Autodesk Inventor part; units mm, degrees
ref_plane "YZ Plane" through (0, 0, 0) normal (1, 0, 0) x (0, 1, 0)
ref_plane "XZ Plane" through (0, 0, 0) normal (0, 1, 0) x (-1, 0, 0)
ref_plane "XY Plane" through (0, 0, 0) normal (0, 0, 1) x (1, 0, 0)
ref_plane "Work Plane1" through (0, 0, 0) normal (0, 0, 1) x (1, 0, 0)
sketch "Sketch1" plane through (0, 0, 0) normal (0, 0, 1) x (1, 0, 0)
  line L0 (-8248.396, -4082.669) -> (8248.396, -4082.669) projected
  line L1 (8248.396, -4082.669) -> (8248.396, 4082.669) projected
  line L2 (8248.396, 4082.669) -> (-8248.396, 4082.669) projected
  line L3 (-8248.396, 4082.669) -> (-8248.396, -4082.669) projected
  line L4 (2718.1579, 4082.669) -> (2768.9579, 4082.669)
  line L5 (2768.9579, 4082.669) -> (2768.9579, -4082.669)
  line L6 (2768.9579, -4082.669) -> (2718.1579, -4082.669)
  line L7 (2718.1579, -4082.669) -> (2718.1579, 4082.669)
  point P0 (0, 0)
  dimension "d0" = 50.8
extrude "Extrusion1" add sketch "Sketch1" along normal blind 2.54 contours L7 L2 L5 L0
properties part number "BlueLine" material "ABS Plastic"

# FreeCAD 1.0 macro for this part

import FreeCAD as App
import Part
import Sketcher
Q = App.Units.Quantity


def add_polygon(sketch, points):
    """Adds a closed chain of lines whose ends are joined by coincident constraints."""
    first, n = sketch.GeometryCount, len(points)
    for a, b in zip(points, points[1:] + points[:1]):
        sketch.addGeometry(Part.LineSegment(App.Vector(*a, 0), App.Vector(*b, 0)), False)
    for i in range(n):
        sketch.addConstraint(Sketcher.Constraint("Coincident", first + i, 2, first + (i + 1) % n, 1))

doc = App.newDocument("Part")
params = doc.addObject("Spreadsheet::Sheet", "Params")
for row, (alias, value) in enumerate([
    ("sketch1_width", "2 in"),
    ("sketch1_height", "321.47 in"),
    ("pad1_length", "0.1 in"),
], start=1):
    params.set(f"A{row}", alias)
    params.set(f"B{row}", "=" + value)
    params.setAlias(f"B{row}", alias)

body = doc.addObject("PartDesign::Body", "Body")

sketch1 = body.newObject("Sketcher::SketchObject", "Sketch")
sketch1.AttachmentSupport = (doc.getObject("XY_Plane"), [""])
sketch1.MapMode = "FlatFace"
add_polygon(sketch1, [(2718, 4083), (2718, -4083), (2769, -4083), (2769, 4083)])
sketch1.addConstraint([
    Sketcher.Constraint("Vertical", 0),
    Sketcher.Constraint("Horizontal", 1),
    Sketcher.Constraint("Vertical", 2),
    Sketcher.Constraint("Horizontal", 3),
    Sketcher.Constraint("DistanceX", 1, 1, 1, 2, Q("2 in")),
    Sketcher.Constraint("DistanceY", 0, 2, 0, 1, Q("321.47 in")),
    Sketcher.Constraint("DistanceY", 0, 2, -1, 1, Q("160.735 in")),
    Sketcher.Constraint("DistanceX", -1, 1, 0, 2, Q("107.0141 in")),
])
sketch1.setExpression("Constraints[8]", "Params.sketch1_width")
sketch1.setExpression("Constraints[9]", "Params.sketch1_height")
pad1 = body.newObject("PartDesign::Pad", "Pad")
pad1.Profile = sketch1
pad1.setExpression("Length", "Params.pad1_length")

doc.recompute()
